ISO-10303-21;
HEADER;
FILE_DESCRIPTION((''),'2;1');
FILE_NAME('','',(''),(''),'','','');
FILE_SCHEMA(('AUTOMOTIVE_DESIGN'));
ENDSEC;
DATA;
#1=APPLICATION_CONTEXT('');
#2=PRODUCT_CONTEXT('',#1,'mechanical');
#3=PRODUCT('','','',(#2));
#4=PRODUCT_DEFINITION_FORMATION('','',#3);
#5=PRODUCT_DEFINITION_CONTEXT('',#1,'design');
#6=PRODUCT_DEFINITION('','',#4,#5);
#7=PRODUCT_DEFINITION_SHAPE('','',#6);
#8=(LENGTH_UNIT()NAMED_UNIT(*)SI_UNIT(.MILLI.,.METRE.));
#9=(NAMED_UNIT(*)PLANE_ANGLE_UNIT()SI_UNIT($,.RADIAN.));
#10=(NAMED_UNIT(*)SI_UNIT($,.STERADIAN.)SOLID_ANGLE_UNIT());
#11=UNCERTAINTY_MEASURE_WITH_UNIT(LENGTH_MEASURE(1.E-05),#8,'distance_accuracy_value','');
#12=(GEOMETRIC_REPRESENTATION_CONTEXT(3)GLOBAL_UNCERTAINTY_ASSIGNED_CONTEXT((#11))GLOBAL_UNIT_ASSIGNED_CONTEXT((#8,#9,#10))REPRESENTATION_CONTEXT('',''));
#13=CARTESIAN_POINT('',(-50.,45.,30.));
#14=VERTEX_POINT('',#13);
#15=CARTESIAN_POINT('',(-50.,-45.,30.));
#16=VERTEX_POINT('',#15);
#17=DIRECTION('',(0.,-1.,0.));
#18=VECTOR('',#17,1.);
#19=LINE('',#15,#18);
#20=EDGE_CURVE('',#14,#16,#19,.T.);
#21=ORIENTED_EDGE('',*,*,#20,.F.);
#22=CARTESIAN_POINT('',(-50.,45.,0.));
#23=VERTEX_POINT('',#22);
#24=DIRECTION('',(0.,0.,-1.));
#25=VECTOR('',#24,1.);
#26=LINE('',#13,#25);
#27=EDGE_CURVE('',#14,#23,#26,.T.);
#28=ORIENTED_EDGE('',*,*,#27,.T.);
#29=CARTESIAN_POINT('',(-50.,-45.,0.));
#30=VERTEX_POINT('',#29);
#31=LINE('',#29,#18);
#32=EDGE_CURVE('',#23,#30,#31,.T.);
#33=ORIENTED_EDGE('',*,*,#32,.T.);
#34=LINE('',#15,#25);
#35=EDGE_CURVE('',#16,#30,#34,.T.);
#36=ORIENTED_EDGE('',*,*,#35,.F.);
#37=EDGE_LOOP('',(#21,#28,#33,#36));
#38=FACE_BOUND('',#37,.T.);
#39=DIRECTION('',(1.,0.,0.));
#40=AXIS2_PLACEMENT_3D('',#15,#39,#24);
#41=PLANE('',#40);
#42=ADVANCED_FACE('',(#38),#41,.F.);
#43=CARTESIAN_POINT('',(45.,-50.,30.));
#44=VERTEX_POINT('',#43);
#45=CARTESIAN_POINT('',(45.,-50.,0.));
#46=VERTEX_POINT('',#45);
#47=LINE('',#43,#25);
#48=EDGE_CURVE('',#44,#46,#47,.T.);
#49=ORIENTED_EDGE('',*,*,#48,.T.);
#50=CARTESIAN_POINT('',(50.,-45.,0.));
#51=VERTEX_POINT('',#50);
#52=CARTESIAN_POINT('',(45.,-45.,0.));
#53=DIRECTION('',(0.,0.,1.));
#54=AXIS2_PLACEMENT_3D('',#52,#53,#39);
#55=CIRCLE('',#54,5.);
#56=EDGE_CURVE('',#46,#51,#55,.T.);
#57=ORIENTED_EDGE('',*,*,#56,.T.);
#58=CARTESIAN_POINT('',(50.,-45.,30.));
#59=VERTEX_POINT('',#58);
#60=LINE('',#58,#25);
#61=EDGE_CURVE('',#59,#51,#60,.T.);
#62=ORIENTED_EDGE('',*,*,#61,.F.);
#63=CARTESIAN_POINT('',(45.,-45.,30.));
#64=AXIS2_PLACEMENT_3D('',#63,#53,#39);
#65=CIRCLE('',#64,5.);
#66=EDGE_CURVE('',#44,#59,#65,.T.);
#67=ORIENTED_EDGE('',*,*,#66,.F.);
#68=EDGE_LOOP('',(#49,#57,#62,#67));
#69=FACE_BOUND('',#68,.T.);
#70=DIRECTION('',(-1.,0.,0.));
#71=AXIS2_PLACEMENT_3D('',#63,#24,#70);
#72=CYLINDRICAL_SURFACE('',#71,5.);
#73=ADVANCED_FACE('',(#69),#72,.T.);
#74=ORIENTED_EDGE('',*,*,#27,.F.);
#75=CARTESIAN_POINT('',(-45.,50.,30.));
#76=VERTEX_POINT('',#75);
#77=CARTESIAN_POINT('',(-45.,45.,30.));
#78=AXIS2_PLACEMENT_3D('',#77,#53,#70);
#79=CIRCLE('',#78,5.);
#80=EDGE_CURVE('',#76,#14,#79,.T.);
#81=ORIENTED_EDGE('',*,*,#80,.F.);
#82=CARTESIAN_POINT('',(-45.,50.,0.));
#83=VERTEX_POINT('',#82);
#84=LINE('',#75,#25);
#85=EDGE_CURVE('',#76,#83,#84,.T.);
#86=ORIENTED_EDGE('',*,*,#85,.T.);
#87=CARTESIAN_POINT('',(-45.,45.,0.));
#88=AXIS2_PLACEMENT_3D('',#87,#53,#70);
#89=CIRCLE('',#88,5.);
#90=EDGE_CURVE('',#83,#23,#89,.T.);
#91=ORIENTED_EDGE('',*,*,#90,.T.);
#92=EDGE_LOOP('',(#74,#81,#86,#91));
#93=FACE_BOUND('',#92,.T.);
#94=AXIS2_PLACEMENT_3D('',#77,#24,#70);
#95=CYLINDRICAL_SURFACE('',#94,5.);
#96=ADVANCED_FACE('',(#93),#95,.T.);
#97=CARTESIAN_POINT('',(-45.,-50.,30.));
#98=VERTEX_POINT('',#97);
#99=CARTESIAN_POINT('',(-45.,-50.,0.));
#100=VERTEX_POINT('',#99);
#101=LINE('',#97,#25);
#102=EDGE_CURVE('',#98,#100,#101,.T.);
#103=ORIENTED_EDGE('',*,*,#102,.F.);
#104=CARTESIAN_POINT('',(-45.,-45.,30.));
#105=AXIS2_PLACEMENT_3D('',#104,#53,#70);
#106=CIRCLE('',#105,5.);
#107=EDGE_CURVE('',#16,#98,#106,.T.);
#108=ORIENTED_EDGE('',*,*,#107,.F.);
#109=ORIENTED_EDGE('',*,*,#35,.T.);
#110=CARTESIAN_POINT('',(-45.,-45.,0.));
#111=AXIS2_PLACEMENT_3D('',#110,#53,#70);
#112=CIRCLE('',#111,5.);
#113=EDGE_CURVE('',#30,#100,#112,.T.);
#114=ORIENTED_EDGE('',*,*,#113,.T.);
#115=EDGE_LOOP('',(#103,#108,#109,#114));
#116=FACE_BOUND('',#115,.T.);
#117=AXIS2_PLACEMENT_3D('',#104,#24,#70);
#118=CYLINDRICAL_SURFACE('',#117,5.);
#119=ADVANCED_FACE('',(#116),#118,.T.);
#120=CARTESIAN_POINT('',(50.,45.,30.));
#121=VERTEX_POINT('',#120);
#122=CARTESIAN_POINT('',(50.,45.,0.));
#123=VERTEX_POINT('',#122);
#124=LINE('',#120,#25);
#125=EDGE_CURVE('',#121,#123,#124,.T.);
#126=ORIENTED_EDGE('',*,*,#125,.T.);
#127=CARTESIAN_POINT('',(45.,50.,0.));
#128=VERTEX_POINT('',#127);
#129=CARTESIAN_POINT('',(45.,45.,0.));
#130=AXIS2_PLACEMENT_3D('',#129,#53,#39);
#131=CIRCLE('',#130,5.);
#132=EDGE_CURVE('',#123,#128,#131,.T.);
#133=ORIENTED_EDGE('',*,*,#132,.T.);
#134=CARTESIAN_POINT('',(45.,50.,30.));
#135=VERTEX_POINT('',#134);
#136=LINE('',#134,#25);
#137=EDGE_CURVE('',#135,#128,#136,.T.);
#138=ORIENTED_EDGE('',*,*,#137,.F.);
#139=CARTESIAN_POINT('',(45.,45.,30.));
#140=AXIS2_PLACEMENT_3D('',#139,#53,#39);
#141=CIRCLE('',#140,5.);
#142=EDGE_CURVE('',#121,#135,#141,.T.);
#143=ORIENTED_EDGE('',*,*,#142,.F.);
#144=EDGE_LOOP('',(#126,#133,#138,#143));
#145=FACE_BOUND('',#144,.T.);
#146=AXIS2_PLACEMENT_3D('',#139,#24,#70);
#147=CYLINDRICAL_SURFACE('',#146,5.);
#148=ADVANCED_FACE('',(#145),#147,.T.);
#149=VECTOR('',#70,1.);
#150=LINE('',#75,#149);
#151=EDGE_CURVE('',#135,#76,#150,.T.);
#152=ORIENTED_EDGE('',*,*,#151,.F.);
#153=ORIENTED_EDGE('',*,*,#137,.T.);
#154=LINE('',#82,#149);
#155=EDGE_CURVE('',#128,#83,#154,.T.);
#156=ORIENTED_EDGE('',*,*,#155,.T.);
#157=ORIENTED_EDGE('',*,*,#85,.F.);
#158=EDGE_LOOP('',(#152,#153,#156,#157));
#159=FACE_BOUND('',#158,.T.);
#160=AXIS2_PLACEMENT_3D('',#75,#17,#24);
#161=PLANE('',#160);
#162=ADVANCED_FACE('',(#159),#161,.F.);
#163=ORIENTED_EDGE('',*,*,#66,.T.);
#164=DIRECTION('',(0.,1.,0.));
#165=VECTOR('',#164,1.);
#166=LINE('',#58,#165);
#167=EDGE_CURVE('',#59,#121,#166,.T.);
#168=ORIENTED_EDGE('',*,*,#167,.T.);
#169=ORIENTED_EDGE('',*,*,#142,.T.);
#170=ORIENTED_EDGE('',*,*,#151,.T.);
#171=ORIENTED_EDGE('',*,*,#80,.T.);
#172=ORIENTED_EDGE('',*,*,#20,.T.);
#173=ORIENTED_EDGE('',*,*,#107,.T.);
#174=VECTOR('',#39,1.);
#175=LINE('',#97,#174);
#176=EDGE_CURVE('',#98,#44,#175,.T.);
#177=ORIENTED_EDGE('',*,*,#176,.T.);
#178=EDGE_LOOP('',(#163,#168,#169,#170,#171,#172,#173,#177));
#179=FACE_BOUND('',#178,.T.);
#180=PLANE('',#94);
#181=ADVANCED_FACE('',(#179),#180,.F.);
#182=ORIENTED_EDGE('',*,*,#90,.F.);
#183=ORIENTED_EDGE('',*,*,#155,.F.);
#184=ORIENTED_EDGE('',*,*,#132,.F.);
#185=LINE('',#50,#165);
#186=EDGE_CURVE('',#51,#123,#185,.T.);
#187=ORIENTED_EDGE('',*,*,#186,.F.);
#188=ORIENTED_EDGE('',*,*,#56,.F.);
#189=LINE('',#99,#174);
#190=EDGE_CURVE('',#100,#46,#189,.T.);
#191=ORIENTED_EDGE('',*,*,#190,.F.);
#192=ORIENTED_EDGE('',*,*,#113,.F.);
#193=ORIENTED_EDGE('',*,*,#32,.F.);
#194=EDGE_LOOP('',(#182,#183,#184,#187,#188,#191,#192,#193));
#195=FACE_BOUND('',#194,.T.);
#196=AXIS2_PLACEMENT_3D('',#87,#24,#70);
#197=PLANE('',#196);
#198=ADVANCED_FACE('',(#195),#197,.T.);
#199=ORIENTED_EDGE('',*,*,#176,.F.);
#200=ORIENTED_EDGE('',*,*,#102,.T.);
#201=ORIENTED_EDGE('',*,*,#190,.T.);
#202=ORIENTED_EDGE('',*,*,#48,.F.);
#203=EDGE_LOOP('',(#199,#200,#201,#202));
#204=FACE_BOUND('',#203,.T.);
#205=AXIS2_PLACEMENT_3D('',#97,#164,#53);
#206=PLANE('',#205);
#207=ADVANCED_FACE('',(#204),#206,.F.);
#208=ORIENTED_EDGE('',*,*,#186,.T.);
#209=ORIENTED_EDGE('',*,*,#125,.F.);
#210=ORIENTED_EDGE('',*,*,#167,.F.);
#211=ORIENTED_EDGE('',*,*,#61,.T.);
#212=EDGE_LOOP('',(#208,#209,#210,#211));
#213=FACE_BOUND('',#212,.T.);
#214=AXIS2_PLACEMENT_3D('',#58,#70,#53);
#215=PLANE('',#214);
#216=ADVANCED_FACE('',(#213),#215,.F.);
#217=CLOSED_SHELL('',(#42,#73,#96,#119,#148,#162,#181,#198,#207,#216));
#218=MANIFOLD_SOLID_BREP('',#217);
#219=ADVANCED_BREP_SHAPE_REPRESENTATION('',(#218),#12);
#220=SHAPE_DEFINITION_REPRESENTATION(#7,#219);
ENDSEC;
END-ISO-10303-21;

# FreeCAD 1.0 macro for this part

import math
import FreeCAD as App
import Part
import Sketcher
Q = App.Units.Quantity

doc = App.newDocument("Part")
body = doc.addObject("PartDesign::Body", "Body")

# Sketch on XY plane
sketch1 = doc.addObject("Sketcher::SketchObject", "Sketch")
body.addObject(sketch1)
sketch1.AttachmentSupport = (doc.XY_Plane, [""])
sketch1.MapMode = "FlatFace"
sketch1.addGeometry(Part.LineSegment(App.Vector(-45, -50, 0), App.Vector(45, -50, 0)), False)
sketch1.addGeometry(Part.ArcOfCircle(Part.Circle(App.Vector(45, -45, 0), App.Vector(0, 0, 1), 5), math.radians(-90), math.radians(0)), False)
sketch1.addGeometry(Part.LineSegment(App.Vector(50, -45, 0), App.Vector(50, 45, 0)), False)
sketch1.addGeometry(Part.ArcOfCircle(Part.Circle(App.Vector(45, 45, 0), App.Vector(0, 0, 1), 5), math.radians(0), math.radians(90)), False)
sketch1.addGeometry(Part.LineSegment(App.Vector(45, 50, 0), App.Vector(-45, 50, 0)), False)
sketch1.addGeometry(Part.ArcOfCircle(Part.Circle(App.Vector(-45, 45, 0), App.Vector(0, 0, 1), 5), math.radians(90), math.radians(180)), False)
sketch1.addGeometry(Part.LineSegment(App.Vector(-50, 45, 0), App.Vector(-50, -45, 0)), False)
sketch1.addGeometry(Part.ArcOfCircle(Part.Circle(App.Vector(-45, -45, 0), App.Vector(0, 0, 1), 5), math.radians(180), math.radians(270)), False)
sketch1.addConstraint(Sketcher.Constraint("Tangent", 0, 2, 1, 1))
sketch1.addConstraint(Sketcher.Constraint("Tangent", 1, 2, 2, 1))
sketch1.addConstraint(Sketcher.Constraint("Tangent", 2, 2, 3, 1))
sketch1.addConstraint(Sketcher.Constraint("Tangent", 3, 2, 4, 1))
sketch1.addConstraint(Sketcher.Constraint("Tangent", 4, 2, 5, 1))
sketch1.addConstraint(Sketcher.Constraint("Tangent", 5, 2, 6, 1))
sketch1.addConstraint(Sketcher.Constraint("Tangent", 6, 2, 7, 1))
sketch1.addConstraint(Sketcher.Constraint("Tangent", 7, 2, 0, 1))
sketch1.addConstraint(Sketcher.Constraint("Horizontal", 0))
sketch1.addConstraint(Sketcher.Constraint("Vertical", 2))
sketch1.addConstraint(Sketcher.Constraint("Horizontal", 4))
sketch1.addConstraint(Sketcher.Constraint("Vertical", 6))
sketch1.addConstraint(Sketcher.Constraint("Equal", 1, 3))
sketch1.addConstraint(Sketcher.Constraint("Equal", 3, 5))
sketch1.addConstraint(Sketcher.Constraint("Equal", 5, 7))
sketch1.addConstraint(Sketcher.Constraint("Symmetric", 1, 3, 5, 3, -1, 1))
sketch1.addConstraint(Sketcher.Constraint("Equal", 4, 2))
sketch1.addConstraint(Sketcher.Constraint("Radius", 1, Q("5 mm")))
sketch1.addConstraint(Sketcher.Constraint("DistanceX", 0, 1, 0, 2, Q("90 mm")))
pad1 = doc.addObject("PartDesign::Pad", "Pad")
body.addObject(pad1)
pad1.Profile = sketch1
pad1.Length = 30

doc.recompute()
